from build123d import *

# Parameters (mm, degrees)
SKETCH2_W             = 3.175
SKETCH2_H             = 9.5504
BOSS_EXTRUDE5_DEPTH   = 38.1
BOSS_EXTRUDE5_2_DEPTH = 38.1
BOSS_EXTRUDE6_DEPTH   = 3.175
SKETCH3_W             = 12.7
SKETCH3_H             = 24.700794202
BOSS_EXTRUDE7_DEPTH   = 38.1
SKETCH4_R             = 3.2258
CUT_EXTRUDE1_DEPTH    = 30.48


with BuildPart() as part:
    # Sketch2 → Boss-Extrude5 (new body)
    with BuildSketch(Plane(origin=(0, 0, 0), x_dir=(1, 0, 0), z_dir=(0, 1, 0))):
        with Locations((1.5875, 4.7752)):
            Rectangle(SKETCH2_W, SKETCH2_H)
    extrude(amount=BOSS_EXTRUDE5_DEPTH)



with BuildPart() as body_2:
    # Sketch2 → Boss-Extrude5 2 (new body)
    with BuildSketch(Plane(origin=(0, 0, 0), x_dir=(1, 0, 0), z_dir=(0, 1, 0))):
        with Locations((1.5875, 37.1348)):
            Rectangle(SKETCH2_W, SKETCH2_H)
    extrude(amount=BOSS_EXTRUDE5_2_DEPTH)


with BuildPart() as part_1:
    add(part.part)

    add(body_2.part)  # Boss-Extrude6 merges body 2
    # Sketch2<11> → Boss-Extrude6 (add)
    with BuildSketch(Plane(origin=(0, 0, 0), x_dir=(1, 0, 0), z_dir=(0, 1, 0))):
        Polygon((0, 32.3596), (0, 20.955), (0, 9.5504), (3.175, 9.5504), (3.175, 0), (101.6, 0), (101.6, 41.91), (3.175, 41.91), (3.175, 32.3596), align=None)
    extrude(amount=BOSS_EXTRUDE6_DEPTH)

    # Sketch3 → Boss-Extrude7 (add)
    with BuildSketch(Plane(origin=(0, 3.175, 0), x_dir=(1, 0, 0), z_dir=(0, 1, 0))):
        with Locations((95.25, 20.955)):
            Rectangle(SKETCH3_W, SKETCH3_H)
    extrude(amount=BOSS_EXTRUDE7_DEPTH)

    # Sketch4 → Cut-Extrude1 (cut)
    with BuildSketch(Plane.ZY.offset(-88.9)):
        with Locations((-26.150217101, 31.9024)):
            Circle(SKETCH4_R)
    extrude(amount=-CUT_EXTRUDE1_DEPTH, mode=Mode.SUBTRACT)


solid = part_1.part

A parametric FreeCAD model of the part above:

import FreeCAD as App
import Part
import Sketcher
Q = App.Units.Quantity


def add_polygon(sketch, points):
    """Adds a closed chain of lines whose ends are joined by coincident constraints."""
    first, n = sketch.GeometryCount, len(points)
    for a, b in zip(points, points[1:] + points[:1]):
        sketch.addGeometry(Part.LineSegment(App.Vector(*a, 0), App.Vector(*b, 0)), False)
    for i in range(n):
        sketch.addConstraint(Sketcher.Constraint("Coincident", first + i, 2, first + (i + 1) % n, 1))

doc = App.newDocument("Part")
body = doc.addObject("PartDesign::Body", "Body")

# Sketch on XZ plane
sketch1 = body.newObject("Sketcher::SketchObject", "Sketch")
sketch1.AttachmentSupport = (doc.getObject("XZ_Plane"), [""])
sketch1.MapMode = "FlatFace"
add_polygon(sketch1, [(0, -9.5504), (0, 0), (3.175, 0), (3.175, -9.5504)])  # lines 0-3
sketch1.addConstraint([
    Sketcher.Constraint("Vertical", 0),
    Sketcher.Constraint("Horizontal", 1),
    Sketcher.Constraint("Vertical", 2),
    Sketcher.Constraint("Horizontal", 3),
    Sketcher.Constraint("Coincident", 0, 2, -1, 1),
    Sketcher.Constraint("DistanceX", 1, 1, 1, 2, Q("0.125 in")),
    Sketcher.Constraint("DistanceY", 0, 1, 0, 2, Q("0.376 in")),
])
pad1 = body.newObject("PartDesign::Pad", "Pad")
pad1.Profile = sketch1
pad1.Length = Q("1.5 in")
pad1.Reversed = True
body2 = doc.addObject("PartDesign::Body", "Body001")

# Sketch on XZ plane
sketch2 = body2.newObject("Sketcher::SketchObject", "Sketch001")
sketch2.AttachmentSupport = (doc.getObject("XZ_Plane001"), [""])
sketch2.MapMode = "FlatFace"
add_polygon(sketch2, [(0, -41.91), (0, -32.3596), (3.175, -32.3596), (3.175, -41.91)])  # lines 0-3
sketch2.addConstraint([
    Sketcher.Constraint("Vertical", 0),
    Sketcher.Constraint("Horizontal", 1),
    Sketcher.Constraint("Vertical", 2),
    Sketcher.Constraint("Horizontal", 3),
    Sketcher.Constraint("PointOnObject", 0, 2, -2),
    Sketcher.Constraint("DistanceX", 1, 1, 1, 2, Q("0.125 in")),
    Sketcher.Constraint("DistanceY", 0, 1, 0, 2, Q("0.376 in")),
    Sketcher.Constraint("DistanceY", 2, 2, -1, 1, Q("1.65 in")),
])
pad2 = body2.newObject("PartDesign::Pad", "Pad001")
pad2.Profile = sketch2
pad2.Length = Q("1.5 in")
pad2.Reversed = True
body.AllowCompound = True
doc.recompute()

boolean = body.newObject("PartDesign::Boolean", "Boolean")
boolean.Type = "Fuse"
boolean.addObjects([body2])

# Sketch on XZ plane
sketch3 = body.newObject("Sketcher::SketchObject", "Sketch002")
sketch3.AttachmentSupport = (doc.getObject("XZ_Plane"), [""])
sketch3.MapMode = "FlatFace"
add_polygon(sketch3, [(0, -32.3596), (0, -9.5504), (3.175, -9.5504), (3.175, 0), (101.6, 0), (101.6, -41.91), (3.175, -41.91), (3.175, -32.3596)])  # lines 0-7
sketch3.addConstraint([
    Sketcher.Constraint("Vertical", 0),
    Sketcher.Constraint("Horizontal", 1),
    Sketcher.Constraint("Vertical", 2),
    Sketcher.Constraint("Horizontal", 3),
    Sketcher.Constraint("Vertical", 4),
    Sketcher.Constraint("Horizontal", 5),
    Sketcher.Constraint("Vertical", 6),
    Sketcher.Constraint("Horizontal", 7),
    Sketcher.Constraint("PointOnObject", 0, 2, -2),
    Sketcher.Constraint("PointOnObject", 2, 2, -1),
    Sketcher.Constraint("Vertical", 2, 2, 5, 2),
    Sketcher.Constraint("Equal", 2, 6),
    Sketcher.Constraint("DistanceX", -1, 1, 3, 2, Q("4 in")),
    Sketcher.Constraint("DistanceY", 4, 2, 4, 1, Q("1.65 in")),
    Sketcher.Constraint("DistanceX", 1, 1, 1, 2, Q("0.125 in")),
    Sketcher.Constraint("DistanceY", 0, 1, 0, 2, Q("0.898 in")),
])
pad3 = body.newObject("PartDesign::Pad", "Pad002")
pad3.Profile = sketch3
pad3.Length = Q("0.125 in")
pad3.Reversed = True

# Sketch on XZ plane
sketch4 = body.newObject("Sketcher::SketchObject", "Sketch003")
sketch4.AttachmentSupport = (doc.getObject("XZ_Plane"), [""])
sketch4.MapMode = "FlatFace"
sketch4.AttachmentOffset = App.Placement(App.Vector(0, 0, -0.125 * 25.4), App.Rotation())
add_polygon(sketch4, [(88.9, -33.305397), (88.9, -8.604603), (101.6, -8.604603), (101.6, -33.305397)])  # lines 0-3
sketch4.addConstraint([
    Sketcher.Constraint("Vertical", 0),
    Sketcher.Constraint("Horizontal", 1),
    Sketcher.Constraint("Vertical", 2),
    Sketcher.Constraint("Horizontal", 3),
    Sketcher.Constraint("DistanceX", 1, 1, 1, 2, Q("0.5 in")),
    Sketcher.Constraint("DistanceX", -1, 1, 1, 2, Q("4 in")),
    Sketcher.Constraint("DistanceY", 0, 1, 0, 2, Q("24.700794 mm")),
    Sketcher.Constraint("DistanceY", 0, 2, -1, 1, Q("8.604603 mm")),
])
pad4 = body.newObject("PartDesign::Pad", "Pad003")
pad4.Profile = sketch4
pad4.Length = Q("1.5 in")
pad4.Reversed = True

# Sketch on YZ plane
sketch5 = body.newObject("Sketcher::SketchObject", "Sketch004")
sketch5.AttachmentSupport = (doc.getObject("YZ_Plane"), [""])
sketch5.MapMode = "FlatFace"
sketch5.AttachmentOffset = App.Placement(App.Vector(0, 0, 3.5 * 25.4), App.Rotation())
sketch5.addGeometry(Part.Circle(App.Vector(31.9024, -26.150217, 0), App.Vector(0, 0, 1), 3.2258), False)
sketch5.addConstraint([
    Sketcher.Constraint("Diameter", 0, Q("0.254 in")),
    Sketcher.Constraint("DistanceX", -1, 1, 0, 3, Q("1.256 in")),
    Sketcher.Constraint("DistanceY", 0, 3, -1, 1, Q("26.150217 mm")),
])
pocket1 = body.newObject("PartDesign::Pocket", "Pocket")
pocket1.Profile = sketch5
pocket1.Length = Q("1.2 in")
pocket1.Reversed = True

doc.recompute()
